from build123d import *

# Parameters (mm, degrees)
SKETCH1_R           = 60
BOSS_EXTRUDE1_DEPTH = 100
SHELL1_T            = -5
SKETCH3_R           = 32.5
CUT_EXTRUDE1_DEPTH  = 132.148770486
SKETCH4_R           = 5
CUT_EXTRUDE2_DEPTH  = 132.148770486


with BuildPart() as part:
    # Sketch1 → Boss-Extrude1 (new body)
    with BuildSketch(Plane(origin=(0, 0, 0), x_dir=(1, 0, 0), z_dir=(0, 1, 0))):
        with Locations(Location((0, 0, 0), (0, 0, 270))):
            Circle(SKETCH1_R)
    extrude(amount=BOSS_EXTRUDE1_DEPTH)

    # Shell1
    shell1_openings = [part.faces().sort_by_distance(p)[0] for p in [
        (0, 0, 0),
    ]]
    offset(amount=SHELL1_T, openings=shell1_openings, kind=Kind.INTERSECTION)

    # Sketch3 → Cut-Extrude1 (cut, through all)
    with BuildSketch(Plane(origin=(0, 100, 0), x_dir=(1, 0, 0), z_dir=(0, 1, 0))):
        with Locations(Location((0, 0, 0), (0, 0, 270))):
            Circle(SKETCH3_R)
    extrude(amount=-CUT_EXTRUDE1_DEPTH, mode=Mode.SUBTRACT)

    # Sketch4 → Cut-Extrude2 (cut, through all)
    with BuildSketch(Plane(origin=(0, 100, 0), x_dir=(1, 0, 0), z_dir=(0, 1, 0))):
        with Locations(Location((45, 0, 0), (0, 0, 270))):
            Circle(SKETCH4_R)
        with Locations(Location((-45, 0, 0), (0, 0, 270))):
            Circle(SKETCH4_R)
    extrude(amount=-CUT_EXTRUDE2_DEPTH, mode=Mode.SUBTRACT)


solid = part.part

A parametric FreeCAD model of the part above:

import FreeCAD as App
import Part
import Sketcher

V = App.Vector


def faces_at(feature, points):
    """Names of the faces that lie closest to the given points."""
    faces = feature.Shape.Faces
    near = lambda p: min(range(len(faces)), key=lambda i: faces[i].distToShape(Part.Vertex(*p))[0])
    return sorted({f"Face{near(p) + 1}" for p in points})

doc = App.newDocument("Part")
body = doc.addObject("PartDesign::Body", "Body")

# Sketch on XZ plane
sketch1 = body.newObject("Sketcher::SketchObject", "Sketch")
sketch1.AttachmentSupport = (doc.getObject("XZ_Plane"), [""])
sketch1.MapMode = "FlatFace"
sketch1.addGeometry(Part.Circle(V(0, 0, 0), V(0, 0, 1), 60), False)
sketch1.addConstraint(Sketcher.Constraint("Coincident", 0, 3, -1, 1))
sketch1.addConstraint(Sketcher.Constraint("Diameter", 0, 120.0))
pad1 = body.newObject("PartDesign::Pad", "Pad")
pad1.Profile = sketch1
pad1.Length = 100
pad1.Reversed = True
doc.recompute()

thickness = body.newObject("PartDesign::Thickness", "Thickness")
thickness.Base = (pad1, faces_at(pad1, [(0, 0, 0)]))
thickness.Value = 5
thickness.Reversed = True
thickness.Join = "Intersection"

# Sketch on XZ plane
sketch2 = body.newObject("Sketcher::SketchObject", "Sketch001")
sketch2.AttachmentSupport = (doc.getObject("XZ_Plane"), [""])
sketch2.MapMode = "FlatFace"
sketch2.AttachmentOffset = App.Placement(V(0, 0, -100), App.Rotation())
sketch2.addGeometry(Part.Circle(V(0, 0, 0), V(0, 0, 1), 32.5), False)
sketch2.addConstraint(Sketcher.Constraint("Coincident", 0, 3, -1, 1))
sketch2.addConstraint(Sketcher.Constraint("Diameter", 0, 65.0))
pocket1 = body.newObject("PartDesign::Pocket", "Pocket")
pocket1.Profile = sketch2
pocket1.Type = "ThroughAll"
pocket1.Reversed = True

# Sketch on XZ plane
sketch3 = body.newObject("Sketcher::SketchObject", "Sketch002")
sketch3.AttachmentSupport = (doc.getObject("XZ_Plane"), [""])
sketch3.MapMode = "FlatFace"
sketch3.AttachmentOffset = App.Placement(V(0, 0, -100), App.Rotation())
sketch3.addGeometry(Part.Circle(V(45, 0, 0), V(0, 0, 1), 5), False)
sketch3.addGeometry(Part.Circle(V(-45, 0, 0), V(0, 0, 1), 5), False)
sketch3.addConstraint(Sketcher.Constraint("Equal", 0, 1))
sketch3.addConstraint(Sketcher.Constraint("Symmetric", 0, 3, 1, 3, -1, 1))
sketch3.addConstraint(Sketcher.Constraint("PointOnObject", 0, 3, -1))
sketch3.addConstraint(Sketcher.Constraint("Diameter", 0, 10.0))
sketch3.addConstraint(Sketcher.Constraint("DistanceX", -1, 1, 0, 3, 45.0))
pocket2 = body.newObject("PartDesign::Pocket", "Pocket001")
pocket2.Profile = sketch3
pocket2.Type = "ThroughAll"
pocket2.Reversed = True

doc.recompute()
